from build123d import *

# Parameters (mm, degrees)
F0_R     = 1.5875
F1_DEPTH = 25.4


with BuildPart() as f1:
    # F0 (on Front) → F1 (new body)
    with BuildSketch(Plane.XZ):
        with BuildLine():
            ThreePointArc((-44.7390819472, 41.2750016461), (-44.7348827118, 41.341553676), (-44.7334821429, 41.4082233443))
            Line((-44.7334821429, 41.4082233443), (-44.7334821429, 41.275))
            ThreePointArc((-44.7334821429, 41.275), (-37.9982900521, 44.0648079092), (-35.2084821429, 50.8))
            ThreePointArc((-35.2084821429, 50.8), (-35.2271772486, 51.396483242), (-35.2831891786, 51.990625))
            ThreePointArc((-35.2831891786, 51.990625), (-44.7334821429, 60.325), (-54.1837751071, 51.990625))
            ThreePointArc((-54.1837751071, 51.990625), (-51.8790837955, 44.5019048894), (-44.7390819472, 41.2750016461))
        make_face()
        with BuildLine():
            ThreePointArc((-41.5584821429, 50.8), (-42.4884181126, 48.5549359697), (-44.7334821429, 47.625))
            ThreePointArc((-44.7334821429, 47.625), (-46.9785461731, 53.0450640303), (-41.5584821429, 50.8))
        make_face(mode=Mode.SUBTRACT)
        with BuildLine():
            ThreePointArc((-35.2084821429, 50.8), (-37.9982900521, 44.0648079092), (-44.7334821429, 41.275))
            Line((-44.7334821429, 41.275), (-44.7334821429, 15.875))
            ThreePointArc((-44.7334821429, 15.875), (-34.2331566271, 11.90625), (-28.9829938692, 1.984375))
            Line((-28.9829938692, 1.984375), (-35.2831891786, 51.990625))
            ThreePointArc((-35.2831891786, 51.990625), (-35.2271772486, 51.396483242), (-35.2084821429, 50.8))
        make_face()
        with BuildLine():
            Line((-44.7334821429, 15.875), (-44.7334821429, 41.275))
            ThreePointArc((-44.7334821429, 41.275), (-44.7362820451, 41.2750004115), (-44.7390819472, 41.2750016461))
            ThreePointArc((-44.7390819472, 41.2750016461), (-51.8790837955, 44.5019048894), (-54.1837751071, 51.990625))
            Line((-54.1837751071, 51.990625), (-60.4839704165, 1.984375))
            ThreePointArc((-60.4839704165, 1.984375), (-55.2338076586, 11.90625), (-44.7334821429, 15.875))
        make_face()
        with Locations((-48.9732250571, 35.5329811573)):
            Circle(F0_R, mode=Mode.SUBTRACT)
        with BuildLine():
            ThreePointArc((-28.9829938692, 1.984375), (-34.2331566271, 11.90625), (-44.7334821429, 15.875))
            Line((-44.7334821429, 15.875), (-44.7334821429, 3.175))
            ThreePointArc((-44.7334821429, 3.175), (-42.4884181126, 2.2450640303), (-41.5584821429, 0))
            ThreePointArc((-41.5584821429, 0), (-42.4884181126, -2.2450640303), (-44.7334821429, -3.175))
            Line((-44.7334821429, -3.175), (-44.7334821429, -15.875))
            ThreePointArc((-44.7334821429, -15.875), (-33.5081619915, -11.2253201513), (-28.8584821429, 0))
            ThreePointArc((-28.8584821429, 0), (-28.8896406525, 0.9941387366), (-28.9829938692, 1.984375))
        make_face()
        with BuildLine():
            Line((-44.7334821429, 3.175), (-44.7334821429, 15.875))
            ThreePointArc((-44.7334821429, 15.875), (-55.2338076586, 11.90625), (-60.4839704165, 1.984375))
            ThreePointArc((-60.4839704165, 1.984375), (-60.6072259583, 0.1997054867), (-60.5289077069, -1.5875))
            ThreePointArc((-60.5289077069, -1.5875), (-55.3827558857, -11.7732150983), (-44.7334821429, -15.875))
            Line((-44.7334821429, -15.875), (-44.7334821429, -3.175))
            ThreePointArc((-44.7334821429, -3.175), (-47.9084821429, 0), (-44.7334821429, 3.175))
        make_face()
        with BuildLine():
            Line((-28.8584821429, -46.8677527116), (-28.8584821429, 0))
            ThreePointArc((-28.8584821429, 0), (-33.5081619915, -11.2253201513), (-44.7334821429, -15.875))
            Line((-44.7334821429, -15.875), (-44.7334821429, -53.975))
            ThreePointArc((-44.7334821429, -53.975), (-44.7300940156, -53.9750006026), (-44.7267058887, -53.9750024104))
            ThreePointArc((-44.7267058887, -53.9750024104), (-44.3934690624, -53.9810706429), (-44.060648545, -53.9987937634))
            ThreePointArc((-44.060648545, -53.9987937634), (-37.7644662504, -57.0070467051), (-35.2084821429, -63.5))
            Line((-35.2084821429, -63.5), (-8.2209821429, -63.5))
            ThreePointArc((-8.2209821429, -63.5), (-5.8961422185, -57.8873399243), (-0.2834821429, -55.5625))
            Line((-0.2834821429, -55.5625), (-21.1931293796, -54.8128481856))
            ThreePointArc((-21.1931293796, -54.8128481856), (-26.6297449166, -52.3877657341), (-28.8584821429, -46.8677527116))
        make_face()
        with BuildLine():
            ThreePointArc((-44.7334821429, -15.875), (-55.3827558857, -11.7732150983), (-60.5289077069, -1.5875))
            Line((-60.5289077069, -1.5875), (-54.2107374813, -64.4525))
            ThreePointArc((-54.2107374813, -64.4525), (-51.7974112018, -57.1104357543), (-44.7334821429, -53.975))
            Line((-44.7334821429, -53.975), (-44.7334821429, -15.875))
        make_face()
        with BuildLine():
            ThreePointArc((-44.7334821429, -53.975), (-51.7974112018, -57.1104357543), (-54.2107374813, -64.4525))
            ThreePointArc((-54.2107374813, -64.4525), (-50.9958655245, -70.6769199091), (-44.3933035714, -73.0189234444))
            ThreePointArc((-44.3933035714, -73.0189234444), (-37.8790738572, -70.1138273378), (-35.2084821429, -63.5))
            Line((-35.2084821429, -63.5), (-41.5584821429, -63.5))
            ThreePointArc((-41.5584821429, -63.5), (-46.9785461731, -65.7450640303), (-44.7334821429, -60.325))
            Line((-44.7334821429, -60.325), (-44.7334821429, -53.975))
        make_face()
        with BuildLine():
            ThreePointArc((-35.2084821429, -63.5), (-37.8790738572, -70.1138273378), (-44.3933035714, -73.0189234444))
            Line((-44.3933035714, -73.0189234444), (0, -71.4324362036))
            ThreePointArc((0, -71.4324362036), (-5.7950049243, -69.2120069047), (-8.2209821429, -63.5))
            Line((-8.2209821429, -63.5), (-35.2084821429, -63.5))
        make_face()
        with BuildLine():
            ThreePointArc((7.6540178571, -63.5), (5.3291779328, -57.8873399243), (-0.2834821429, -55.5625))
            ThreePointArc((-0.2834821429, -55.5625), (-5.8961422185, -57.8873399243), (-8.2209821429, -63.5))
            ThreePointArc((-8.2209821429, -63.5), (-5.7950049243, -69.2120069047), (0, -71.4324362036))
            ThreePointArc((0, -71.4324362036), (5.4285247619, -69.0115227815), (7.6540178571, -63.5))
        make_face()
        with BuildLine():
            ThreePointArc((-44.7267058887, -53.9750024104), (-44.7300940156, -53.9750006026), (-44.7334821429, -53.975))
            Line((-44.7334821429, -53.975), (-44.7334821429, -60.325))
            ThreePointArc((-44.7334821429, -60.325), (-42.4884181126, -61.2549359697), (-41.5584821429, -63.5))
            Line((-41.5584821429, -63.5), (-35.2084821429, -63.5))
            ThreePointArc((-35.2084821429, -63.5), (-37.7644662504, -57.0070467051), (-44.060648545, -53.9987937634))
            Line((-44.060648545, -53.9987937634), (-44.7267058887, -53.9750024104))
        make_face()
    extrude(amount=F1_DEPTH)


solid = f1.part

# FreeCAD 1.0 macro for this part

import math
import FreeCAD as App
import Part
import Sketcher
from FreeCAD import Vector
Q = App.Units.Quantity

doc = App.newDocument("Part")
body = doc.addObject("PartDesign::Body", "Body")

# Sketch on XZ plane
sketch1 = body.newObject("Sketcher::SketchObject", "Sketch")
sketch1.AttachmentSupport = (doc.getObject("XZ_Plane"), [""])
sketch1.MapMode = "FlatFace"
sketch1.addGeometry([
    Part.ArcOfCircle(Part.Circle(Vector(-44.733, -63.5, 0), Vector(0, 0, 1), 9.525), math.radians(-174), math.radians(-88)),  # 0
    Part.LineSegment(Vector(-44.393, -73.019, 0), Vector(0, -71.432, 0)),  # 1
    Part.ArcOfCircle(Part.Circle(Vector(-0.283, -63.5, 0), Vector(0, 0, 1), 7.938), math.radians(-88), math.radians(0)),  # 2
    Part.ArcOfCircle(Part.Circle(Vector(-0.283, -63.5, 0), Vector(0, 0, 1), 7.938), math.radians(0), math.radians(90)),  # 3
    Part.LineSegment(Vector(-0.283, -55.562, 0), Vector(-21.193, -54.813, 0)),  # 4
    Part.ArcOfCircle(Part.Circle(Vector(-20.908, -46.868, 0), Vector(0, 0, 1), 7.95), math.radians(180), math.radians(268)),  # 5
    Part.LineSegment(Vector(-28.858, -46.868, 0), Vector(-28.858, 0, 0)),  # 6
    Part.ArcOfCircle(Part.Circle(Vector(-44.733, 0, 0), Vector(0, 0, 1), 15.875), math.radians(0), math.radians(7.18)),  # 7
    Part.LineSegment(Vector(-28.983, 1.984, 0), Vector(-35.283, 51.991, 0)),  # 8
    Part.ArcOfCircle(Part.Circle(Vector(-44.733, 50.8, 0), Vector(0, 0, 1), 9.525), math.radians(7), math.radians(173)),  # 9
    Part.LineSegment(Vector(-54.184, 51.991, 0), Vector(-60.484, 1.984, 0)),  # 10
    Part.ArcOfCircle(Part.Circle(Vector(-44.733, 0, 0), Vector(0, 0, 1), 15.875), math.radians(172.82), math.radians(185.74)),  # 11
    Part.LineSegment(Vector(-60.529, -1.587, 0), Vector(-54.211, -64.453, 0)),  # 12
    Part.ArcOfCircle(Part.Circle(Vector(-44.733, -63.5, 0), Vector(0, 0, 1), 3.175), math.radians(90), math.radians(360)),  # 13
    Part.ArcOfCircle(Part.Circle(Vector(-44.733, -63.5, 0), Vector(0, 0, 1), 3.175), math.radians(0), math.radians(90)),  # 14
    Part.ArcOfCircle(Part.Circle(Vector(-44.733, -63.5, 0), Vector(0, 0, 1), 9.525), math.radians(85.95), math.radians(89.96)),  # 15
    Part.LineSegment(Vector(-44.061, -53.999, 0), Vector(-44.727, -53.975, 0)),  # 16
    Part.ArcOfCircle(Part.Circle(Vector(-44.733, 0, 0), Vector(0, 0, 1), 3.175), math.radians(0), math.radians(90)),  # 17
    Part.ArcOfCircle(Part.Circle(Vector(-44.733, 0, 0), Vector(0, 0, 1), 3.175), math.radians(-90), math.radians(0)),  # 18
    Part.ArcOfCircle(Part.Circle(Vector(-44.733, 0, 0), Vector(0, 0, 1), 3.175), math.radians(90), math.radians(270)),  # 19
    Part.Circle(Vector(-48.973, 35.533, 0), Vector(0, 0, 1), 1.587),  # 20
    Part.ArcOfCircle(Part.Circle(Vector(-46.321, 41.408, 0), Vector(0, 0, 1), 1.588), math.radians(-4.81), math.radians(0)),  # 21
    Part.LineSegment(Vector(-44.733, 41.408, 0), Vector(-44.733, 41.275, 0)),  # 22
    Part.ArcOfCircle(Part.Circle(Vector(-44.733, 50.799, 0), Vector(0, 0, 1), 9.524), math.radians(-90.03), math.radians(-90)),  # 23
    Part.ArcOfCircle(Part.Circle(Vector(-44.733, 50.8, 0), Vector(0, 0, 1), 3.175), math.radians(0), math.radians(270)),  # 24
    Part.ArcOfCircle(Part.Circle(Vector(-44.733, 50.8, 0), Vector(0, 0, 1), 3.175), math.radians(-90), math.radians(0)),  # 25
], False)
sketch1.addConstraint([
    Sketcher.Constraint("Tangent", 0, 2, 1, 1),
    Sketcher.Constraint("Tangent", 1, 2, 2, 1),
    Sketcher.Constraint("Tangent", 2, 2, 3, 1),
    Sketcher.Constraint("Coincident", 3, 2, 4, 1),
    Sketcher.Constraint("Tangent", 4, 2, 5, 2),
    Sketcher.Constraint("Tangent", 5, 1, 6, 1),
    Sketcher.Constraint("Tangent", 6, 2, 7, 1),
    Sketcher.Constraint("Tangent", 7, 2, 8, 1),
    Sketcher.Constraint("Tangent", 8, 2, 9, 1),
    Sketcher.Constraint("Tangent", 9, 2, 10, 1),
    Sketcher.Constraint("Tangent", 10, 2, 11, 1),
    Sketcher.Constraint("Tangent", 11, 2, 12, 1),
    Sketcher.Constraint("Tangent", 12, 2, 0, 1),
    Sketcher.Constraint("Tangent", 13, 1, 14, 2),
    Sketcher.Constraint("Coincident", 14, 1, 13, 2),
    Sketcher.Constraint("Coincident", 15, 1, 16, 1),
    Sketcher.Constraint("Coincident", 16, 2, 15, 2),
    Sketcher.Constraint("Tangent", 17, 1, 18, 2),
    Sketcher.Constraint("Tangent", 18, 1, 19, 2),
    Sketcher.Constraint("Tangent", 19, 1, 17, 2),
    Sketcher.Constraint("Tangent", 21, 2, 22, 1),
    Sketcher.Constraint("Coincident", 22, 2, 23, 2),
    Sketcher.Constraint("Coincident", 23, 1, 21, 1),
    Sketcher.Constraint("Tangent", 24, 1, 25, 2),
    Sketcher.Constraint("Coincident", 25, 1, 24, 2),
    Sketcher.Constraint("Vertical", 6),
    Sketcher.Constraint("Vertical", 22),
    Sketcher.Constraint("Coincident", 11, 3, 7, 3),
    Sketcher.Constraint("Coincident", 13, 3, 0, 3),
    Sketcher.Constraint("Coincident", 15, 3, 0, 3),
    Sketcher.Constraint("Coincident", 17, 3, 7, 3),
    Sketcher.Constraint("Coincident", 24, 3, 9, 3),
    Sketcher.Constraint("Equal", 2, 3),
    Sketcher.Constraint("Equal", 0, 9),
    Sketcher.Constraint("Equal", 7, 11),
    Sketcher.Constraint("Equal", 9, 15),
    Sketcher.Constraint("Equal", 14, 17),
    Sketcher.Constraint("Equal", 20, 21),
    Sketcher.Constraint("Equal", 19, 24),
    Sketcher.Constraint("Symmetric", 18, 1, 19, 1, -1),
    Sketcher.Constraint("PointOnObject", 1, 2, -2),
    Sketcher.Constraint("PointOnObject", 17, 1, -1),
    Sketcher.Constraint("Horizontal", 0, 3, 2, 3),
    Sketcher.Constraint("Horizontal", 15, 3, 2, 2),
    Sketcher.Constraint("Horizontal", 8, 2, 9, 2),
    Sketcher.Constraint("Horizontal", 2, 2, 14, 1),
    Sketcher.Constraint("Horizontal", 25, 3, 24, 1),
    Sketcher.Constraint("Vertical", 0, 3, 7, 3),
    Sketcher.Constraint("Vertical", 19, 3, 23, 3),
    Sketcher.Constraint("Vertical", 2, 3, 3, 2),
    Sketcher.Constraint("Vertical", 25, 3, 13, 1),
    Sketcher.Constraint("Vertical", 13, 1, 18, 1),
    Sketcher.Constraint("Vertical", 19, 1, 21, 2),
    Sketcher.Constraint("Vertical", 22, 2, 25, 1),
    Sketcher.Constraint("Diameter", 20, Q("0.125 in")),
    Sketcher.Constraint("DistanceY", -1, 1, 9, 3, Q("2 in")),
    Sketcher.Constraint("Radius", 0, Q("0.375 in")),
    Sketcher.Constraint("Radius", 2, Q("0.3125 in")),
    Sketcher.Constraint("Radius", 5, Q("0.313 in")),
    Sketcher.Constraint("Radius", 7, Q("0.625 in")),
    Sketcher.Constraint("Radius", 13, Q("0.125 in")),
    Sketcher.Constraint("DistanceY", 0, 3, -1, 1, Q("2.5 in")),
    Sketcher.Constraint("DistanceX", 0, 3, 2, 3, Q("1.75 in")),
    Sketcher.Constraint("DistanceY", -1, 1, 22, 2, Q("1.625 in")),
    Sketcher.Constraint("Radius", 23, 9.524302),
    Sketcher.Constraint("DistanceY", 21, 3, 8, 2, 10.582402),
    Sketcher.Constraint("Distance", 4, 20.923081),
    Sketcher.Constraint("DistanceY", -1, 1, 20, 3, 35.532981),
    Sketcher.Constraint("DistanceX", 15, 1, -1, 1, 44.060649),
    Sketcher.Constraint("Distance", 16, 0.666482),
    Sketcher.Constraint("DistanceX", 20, 3, -1, 1, 48.973225),
])
pad1 = body.newObject("PartDesign::Pad", "Pad")
pad1.Profile = sketch1
pad1.Length = Q("1 in")

doc.recompute()
